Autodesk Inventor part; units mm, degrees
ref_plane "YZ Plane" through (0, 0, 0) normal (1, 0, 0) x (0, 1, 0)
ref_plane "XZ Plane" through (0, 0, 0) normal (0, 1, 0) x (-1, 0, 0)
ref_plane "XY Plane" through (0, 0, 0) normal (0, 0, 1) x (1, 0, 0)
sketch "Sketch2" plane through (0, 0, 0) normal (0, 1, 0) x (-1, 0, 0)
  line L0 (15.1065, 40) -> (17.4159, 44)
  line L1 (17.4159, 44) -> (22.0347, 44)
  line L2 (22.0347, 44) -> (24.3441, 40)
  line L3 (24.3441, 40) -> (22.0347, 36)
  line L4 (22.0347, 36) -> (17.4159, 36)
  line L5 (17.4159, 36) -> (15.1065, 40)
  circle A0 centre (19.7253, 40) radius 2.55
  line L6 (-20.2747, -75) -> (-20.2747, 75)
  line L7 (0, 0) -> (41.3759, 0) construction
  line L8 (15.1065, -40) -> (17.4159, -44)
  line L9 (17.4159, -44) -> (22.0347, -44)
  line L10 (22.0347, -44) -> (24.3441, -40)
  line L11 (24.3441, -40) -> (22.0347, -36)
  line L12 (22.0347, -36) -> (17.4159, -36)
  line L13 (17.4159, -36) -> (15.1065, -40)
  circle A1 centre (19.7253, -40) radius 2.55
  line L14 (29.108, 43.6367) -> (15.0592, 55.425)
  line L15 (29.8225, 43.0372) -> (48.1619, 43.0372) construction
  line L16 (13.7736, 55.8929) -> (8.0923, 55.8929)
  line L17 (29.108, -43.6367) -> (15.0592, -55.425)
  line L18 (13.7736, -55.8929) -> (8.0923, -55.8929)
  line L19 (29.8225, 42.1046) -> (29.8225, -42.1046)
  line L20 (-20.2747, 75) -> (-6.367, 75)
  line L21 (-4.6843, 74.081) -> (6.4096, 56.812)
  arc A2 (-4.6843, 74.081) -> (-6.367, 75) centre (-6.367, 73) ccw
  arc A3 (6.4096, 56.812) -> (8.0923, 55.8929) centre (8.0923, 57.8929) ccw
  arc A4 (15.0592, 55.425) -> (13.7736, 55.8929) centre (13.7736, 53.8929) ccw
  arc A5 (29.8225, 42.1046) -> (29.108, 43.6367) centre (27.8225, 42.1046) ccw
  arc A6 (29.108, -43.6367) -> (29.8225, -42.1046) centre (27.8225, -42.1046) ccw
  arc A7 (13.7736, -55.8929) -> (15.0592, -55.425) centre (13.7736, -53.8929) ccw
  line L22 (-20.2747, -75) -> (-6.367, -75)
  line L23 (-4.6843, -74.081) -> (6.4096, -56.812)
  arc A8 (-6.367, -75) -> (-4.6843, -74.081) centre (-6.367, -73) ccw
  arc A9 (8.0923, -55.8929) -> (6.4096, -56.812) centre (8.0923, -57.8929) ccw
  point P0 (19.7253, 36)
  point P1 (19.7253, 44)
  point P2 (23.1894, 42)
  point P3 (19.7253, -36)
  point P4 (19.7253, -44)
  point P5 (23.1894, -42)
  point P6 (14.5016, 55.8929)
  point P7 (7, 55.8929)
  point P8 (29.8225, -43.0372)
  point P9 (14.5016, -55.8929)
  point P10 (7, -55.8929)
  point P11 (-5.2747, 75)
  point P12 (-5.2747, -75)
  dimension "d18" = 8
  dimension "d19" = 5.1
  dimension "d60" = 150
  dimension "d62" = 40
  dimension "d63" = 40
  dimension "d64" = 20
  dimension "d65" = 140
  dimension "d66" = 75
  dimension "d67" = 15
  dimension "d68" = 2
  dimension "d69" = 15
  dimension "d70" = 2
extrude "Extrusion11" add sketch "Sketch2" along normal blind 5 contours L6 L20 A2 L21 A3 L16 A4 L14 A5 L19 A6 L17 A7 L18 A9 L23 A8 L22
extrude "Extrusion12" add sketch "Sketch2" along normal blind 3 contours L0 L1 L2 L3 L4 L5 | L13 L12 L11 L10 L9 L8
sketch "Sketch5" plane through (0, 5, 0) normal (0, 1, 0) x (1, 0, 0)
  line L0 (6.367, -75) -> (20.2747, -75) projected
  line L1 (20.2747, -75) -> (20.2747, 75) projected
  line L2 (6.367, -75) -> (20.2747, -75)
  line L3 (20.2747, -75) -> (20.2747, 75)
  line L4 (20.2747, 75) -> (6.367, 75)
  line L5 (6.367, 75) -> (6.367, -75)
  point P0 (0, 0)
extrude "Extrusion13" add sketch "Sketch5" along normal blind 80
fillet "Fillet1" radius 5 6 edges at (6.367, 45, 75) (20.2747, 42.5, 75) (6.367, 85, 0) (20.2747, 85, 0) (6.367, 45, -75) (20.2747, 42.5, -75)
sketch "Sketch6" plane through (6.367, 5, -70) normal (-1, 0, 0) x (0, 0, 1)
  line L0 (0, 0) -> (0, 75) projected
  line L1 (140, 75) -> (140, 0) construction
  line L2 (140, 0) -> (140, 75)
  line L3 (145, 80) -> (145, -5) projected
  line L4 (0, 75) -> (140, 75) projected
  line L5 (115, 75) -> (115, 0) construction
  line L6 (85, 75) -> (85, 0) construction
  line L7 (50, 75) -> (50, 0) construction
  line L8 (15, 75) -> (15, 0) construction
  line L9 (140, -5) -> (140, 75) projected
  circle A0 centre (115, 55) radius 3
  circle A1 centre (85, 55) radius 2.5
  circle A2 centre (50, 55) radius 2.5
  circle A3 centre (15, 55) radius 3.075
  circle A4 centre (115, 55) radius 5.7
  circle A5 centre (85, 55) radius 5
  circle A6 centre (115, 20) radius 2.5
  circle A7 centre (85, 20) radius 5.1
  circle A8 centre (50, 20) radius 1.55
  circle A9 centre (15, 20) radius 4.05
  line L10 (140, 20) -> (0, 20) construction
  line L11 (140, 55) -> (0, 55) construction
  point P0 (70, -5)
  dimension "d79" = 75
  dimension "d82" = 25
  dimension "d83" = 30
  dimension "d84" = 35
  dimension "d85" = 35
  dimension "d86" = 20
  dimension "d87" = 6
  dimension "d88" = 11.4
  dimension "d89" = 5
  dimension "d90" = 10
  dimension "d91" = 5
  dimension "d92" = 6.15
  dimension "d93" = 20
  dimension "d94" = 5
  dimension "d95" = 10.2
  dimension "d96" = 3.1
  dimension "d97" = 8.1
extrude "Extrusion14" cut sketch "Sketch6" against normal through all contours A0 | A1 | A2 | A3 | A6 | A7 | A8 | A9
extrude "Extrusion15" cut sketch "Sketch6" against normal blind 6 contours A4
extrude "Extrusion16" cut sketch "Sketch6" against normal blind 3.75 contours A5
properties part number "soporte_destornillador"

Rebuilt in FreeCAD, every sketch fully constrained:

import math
import FreeCAD as App
import Part
import Sketcher

V = App.Vector
Q = App.Units.Quantity


def edges_at(feature, points):
    """Names of the edges that pass closest to the given points."""
    edges = feature.Shape.Edges
    near = lambda p: min(range(len(edges)), key=lambda i: edges[i].distToShape(Part.Vertex(*p))[0])
    return sorted({f"Edge{near(p) + 1}" for p in points})


def add_polygon(sketch, points):
    """Adds a closed chain of lines whose ends are joined by coincident constraints."""
    first, n = sketch.GeometryCount, len(points)
    for a, b in zip(points, points[1:] + points[:1]):
        sketch.addGeometry(Part.LineSegment(App.Vector(*a, 0), App.Vector(*b, 0)), False)
    for i in range(n):
        sketch.addConstraint(Sketcher.Constraint("Coincident", first + i, 2, first + (i + 1) % n, 1))

doc = App.newDocument("Part")
body = doc.addObject("PartDesign::Body", "Body")

sketch1 = body.newObject("Sketcher::SketchObject", "Sketch")
sketch1.AttachmentSupport = (doc.getObject("XZ_Plane"), [""])
sketch1.MapMode = "FlatFace"
sketch1.addGeometry(Part.LineSegment(V(20.2747, 75, 0), V(20.2747, -75, 0)), False)
sketch1.addGeometry(Part.LineSegment(V(20.2747, -75, 0), V(6.367, -75, 0)), False)
sketch1.addGeometry(Part.ArcOfCircle(Part.Circle(V(6.367, -73, 0), V(0, 0, 1), 2), math.radians(-147.282503), math.radians(-90)), False)
sketch1.addGeometry(Part.LineSegment(V(4.6843, -74.081, 0), V(-6.4096, -56.812, 0)), False)
sketch1.addGeometry(Part.ArcOfCircle(Part.Circle(V(-8.0923, -57.8929, 0), V(0, 0, 1), 2), math.radians(32.715087), math.radians(90)), False)
sketch1.addGeometry(Part.LineSegment(V(-8.0923, -55.8929, 0), V(-13.7736, -55.8929, 0)), False)
sketch1.addGeometry(Part.ArcOfCircle(Part.Circle(V(-13.7736, -53.8929, 0), V(0, 0, 1), 2), math.radians(-130.000339), math.radians(-90)), False)
sketch1.addGeometry(Part.LineSegment(V(-15.0592, -55.425, 0), V(-29.108, -43.6367, 0)), False)
sketch1.addGeometry(Part.ArcOfCircle(Part.Circle(V(-27.8225, -42.1046, 0), V(0, 0, 1), 1.99996), math.radians(180), math.radians(230.001855)), False)
sketch1.addGeometry(Part.LineSegment(V(-29.8225, -42.1046, 0), V(-29.8225, 42.1046, 0)), False)
sketch1.addGeometry(Part.ArcOfCircle(Part.Circle(V(-27.8225, 42.1046, 0), V(0, 0, 1), 2), math.radians(129.998145), math.radians(180)), False)
sketch1.addGeometry(Part.LineSegment(V(-29.108, 43.6367, 0), V(-15.0592, 55.425, 0)), False)
sketch1.addGeometry(Part.ArcOfCircle(Part.Circle(V(-13.7736, 53.8929, 0), V(0, 0, 1), 2.000024), math.radians(90), math.radians(130.000339)), False)
sketch1.addGeometry(Part.LineSegment(V(-13.7736, 55.8929, 0), V(-8.0923, 55.8929, 0)), False)
sketch1.addGeometry(Part.ArcOfCircle(Part.Circle(V(-8.0923, 57.8929, 0), V(0, 0, 1), 1.999956), math.radians(-90), math.radians(-32.715087)), False)
sketch1.addGeometry(Part.LineSegment(V(-6.4096, 56.812, 0), V(4.6843, 74.081, 0)), False)
sketch1.addGeometry(Part.ArcOfCircle(Part.Circle(V(6.367, 73, 0), V(0, 0, 1), 2.00001), math.radians(90), math.radians(147.282503)), False)
sketch1.addGeometry(Part.LineSegment(V(6.367, 75, 0), V(20.2747, 75, 0)), False)
add_polygon(sketch1, [(-17.4159, -44), (-15.1065, -40), (-17.4159, -36), (-22.0347, -36), (-24.3441, -40), (-22.0347, -44)])
add_polygon(sketch1, [(-17.4159, 36), (-15.1065, 40), (-17.4159, 44), (-22.0347, 44), (-24.3441, 40), (-22.0347, 36)])
sketch1.addConstraint([
    Sketcher.Constraint("Coincident", 0, 2, 1, 1),
    Sketcher.Constraint("Tangent", 1, 2, 2, 2),
    Sketcher.Constraint("Tangent", 2, 1, 3, 1),
    Sketcher.Constraint("Tangent", 3, 2, 4, 1),
    Sketcher.Constraint("Tangent", 4, 2, 5, 1),
    Sketcher.Constraint("Tangent", 5, 2, 6, 2),
    Sketcher.Constraint("Tangent", 6, 1, 7, 1),
    Sketcher.Constraint("Tangent", 7, 2, 8, 2),
    Sketcher.Constraint("Tangent", 8, 1, 9, 1),
    Sketcher.Constraint("Tangent", 9, 2, 10, 2),
    Sketcher.Constraint("Tangent", 10, 1, 11, 1),
    Sketcher.Constraint("Tangent", 11, 2, 12, 2),
    Sketcher.Constraint("Tangent", 12, 1, 13, 1),
    Sketcher.Constraint("Tangent", 13, 2, 14, 1),
    Sketcher.Constraint("Tangent", 14, 2, 15, 1),
    Sketcher.Constraint("Tangent", 15, 2, 16, 2),
    Sketcher.Constraint("Tangent", 16, 1, 17, 1),
    Sketcher.Constraint("Coincident", 17, 2, 0, 1),
    Sketcher.Constraint("Vertical", 0),
    Sketcher.Constraint("Horizontal", 1),
    Sketcher.Constraint("Horizontal", 5),
    Sketcher.Constraint("Vertical", 9),
    Sketcher.Constraint("Horizontal", 13),
    Sketcher.Constraint("Horizontal", 17),
    Sketcher.Constraint("Horizontal", 20),
    Sketcher.Constraint("Horizontal", 23),
    Sketcher.Constraint("Horizontal", 26),
    Sketcher.Constraint("Horizontal", 29),
    Sketcher.Constraint("Equal", 2, 4),
    Sketcher.Constraint("Equal", 4, 6),
    Sketcher.Constraint("Equal", 6, 8),
    Sketcher.Constraint("Equal", 8, 10),
    Sketcher.Constraint("Equal", 10, 12),
    Sketcher.Constraint("Equal", 12, 14),
    Sketcher.Constraint("Equal", 14, 16),
    Sketcher.Constraint("Symmetric", 6, 3, 12, 3, -1),
    Sketcher.Constraint("Symmetric", 2, 3, 16, 3, -1),
    Sketcher.Constraint("Symmetric", 18, 2, 24, 2, -1),
    Sketcher.Constraint("Symmetric", 23, 2, 25, 2, -1),
    Sketcher.Constraint("Symmetric", 21, 2, 27, 2, -1),
    Sketcher.Constraint("Symmetric", 20, 2, 28, 2, -1),
    Sketcher.Constraint("Parallel", 18, 21),
    Sketcher.Constraint("Parallel", 19, 22),
    Sketcher.Constraint("Parallel", 21, 24),
    Sketcher.Constraint("Parallel", 22, 25),
    Sketcher.Constraint("Parallel", 24, 27),
    Sketcher.Constraint("Horizontal", 18, 2, 21, 2),
    Sketcher.Constraint("Vertical", 4, 3, 14, 3),
    Sketcher.Constraint("Vertical", 7, 2, 10, 1),
    Sketcher.Constraint("Vertical", 20, 2, 22, 2),
    Sketcher.Constraint("Radius", 2, 2.0),
    Sketcher.Constraint("DistanceY", 0, 2, 0, 1, 150.0),
    Sketcher.Constraint("Angle", 7, Q("140 deg")),
    Sketcher.Constraint("DistanceY", 18, 2, -1, 1, 40.0),
    Sketcher.Constraint("DistanceY", 22, 2, 20, 2, 8.0),
    Sketcher.Constraint("Angle", 18, Q("60 deg")),
    Sketcher.Constraint("DistanceX", 1, 2, 1, 1, 13.9077),
    Sketcher.Constraint("DistanceX", 5, 2, 5, 1, 5.6813),
    Sketcher.Constraint("DistanceX", 20, 2, 20, 1, 4.6188),
    Sketcher.Constraint("DistanceY", 9, 1, 9, 2, 84.2092),
    Sketcher.Constraint("DistanceX", -1, 1, 2, 3, 6.367),
    Sketcher.Constraint("DistanceY", 4, 3, -1, 1, 57.893),
    Sketcher.Constraint("DistanceY", 2, 1, -1, 1, 74.081),
    Sketcher.Constraint("DistanceX", 19, 2, -1, 1, 17.416),
])
pad1 = body.newObject("PartDesign::Pad", "Pad")
pad1.Profile = sketch1
pad1.Length = 5
pad1.Reversed = True

sketch2 = body.newObject("Sketcher::SketchObject", "Sketch001")
sketch2.AttachmentSupport = (doc.getObject("XZ_Plane"), [""])
sketch2.MapMode = "FlatFace"
add_polygon(sketch2, [(-17.4159, 44), (-15.1065, 40), (-17.4159, 36), (-22.0347, 36), (-24.3441, 40), (-22.0347, 44)])
sketch2.addGeometry(Part.Circle(V(-19.7253, 40, 0), V(0, 0, 1), 2.55), False)
add_polygon(sketch2, [(-17.4159, -36), (-15.1065, -40), (-17.4159, -44), (-22.0347, -44), (-24.3441, -40), (-22.0347, -36)])
sketch2.addGeometry(Part.Circle(V(-19.7253, -40, 0), V(0, 0, 1), 2.55), False)
sketch2.addConstraint([
    Sketcher.Constraint("Horizontal", 2),
    Sketcher.Constraint("Horizontal", 5),
    Sketcher.Constraint("Horizontal", 9),
    Sketcher.Constraint("Horizontal", 12),
    Sketcher.Constraint("Equal", 6, 13),
    Sketcher.Constraint("Symmetric", 6, 3, 13, 3, -1),
    Sketcher.Constraint("Symmetric", 0, 2, 7, 2, -1),
    Sketcher.Constraint("Symmetric", 5, 2, 8, 2, -1),
    Sketcher.Constraint("Symmetric", 3, 2, 10, 2, -1),
    Sketcher.Constraint("Symmetric", 2, 2, 11, 2, -1),
    Sketcher.Constraint("Parallel", 0, 3),
    Sketcher.Constraint("Parallel", 1, 4),
    Sketcher.Constraint("Parallel", 3, 7),
    Sketcher.Constraint("Parallel", 4, 8),
    Sketcher.Constraint("Parallel", 7, 10),
    Sketcher.Constraint("Horizontal", 6, 3, 0, 2),
    Sketcher.Constraint("Horizontal", 0, 2, 3, 2),
    Sketcher.Constraint("Vertical", 2, 2, 4, 2),
    Sketcher.Constraint("Diameter", 6, 5.1),
    Sketcher.Constraint("DistanceY", -1, 1, 6, 3, 40.0),
    Sketcher.Constraint("DistanceY", 2, 2, 4, 2, 8.0),
    Sketcher.Constraint("Angle", 0, Q("-60 deg")),
    Sketcher.Constraint("DistanceX", 2, 2, 2, 1, 4.6188),
    Sketcher.Constraint("DistanceX", 1, 2, -1, 1, 17.416),
    Sketcher.Constraint("DistanceX", 6, 3, -1, 1, 19.7253),
])
pad2 = body.newObject("PartDesign::Pad", "Pad001")
pad2.Profile = sketch2
pad2.Length = 3
pad2.Reversed = True

sketch3 = body.newObject("Sketcher::SketchObject", "Sketch002")
sketch3.AttachmentSupport = (doc.getObject("XZ_Plane"), [""])
sketch3.MapMode = "FlatFace"
sketch3.AttachmentOffset = App.Placement(V(0, 0, -5), App.Rotation())
add_polygon(sketch3, [(6.367, -75), (6.367, 75), (20.2747, 75), (20.2747, -75)])
sketch3.addConstraint([
    Sketcher.Constraint("Vertical", 0),
    Sketcher.Constraint("Horizontal", 1),
    Sketcher.Constraint("Vertical", 2),
    Sketcher.Constraint("Horizontal", 3),
    Sketcher.Constraint("DistanceY", 0, 1, 0, 2, 150.0),
    Sketcher.Constraint("DistanceY", -1, 1, 0, 2, 75.0),
    Sketcher.Constraint("DistanceX", 1, 1, 1, 2, 13.9077),
    Sketcher.Constraint("DistanceX", -1, 1, 0, 2, 6.367),
])
pad3 = body.newObject("PartDesign::Pad", "Pad002")
pad3.Profile = sketch3
pad3.Length = 80
pad3.Reversed = True
doc.recompute()

fillet = body.newObject("PartDesign::Fillet", "Fillet")
fillet.Base = (pad3, edges_at(pad3, [
    (6.367, 45, 75),
    (20.275, 42.5, 75),
    (6.367, 85, 0),
    (20.275, 85, 0),
    (6.367, 45, -75),
    (20.275, 42.5, -75),
]))
fillet.Radius = 5

sketch4 = body.newObject("Sketcher::SketchObject", "Sketch003")
sketch4.AttachmentSupport = (doc.getObject("YZ_Plane"), [""])
sketch4.MapMode = "FlatFace"
sketch4.AttachmentOffset = App.Placement(V(0, 0, 6.367), App.Rotation())
sketch4.addGeometry([
    Part.Circle(V(60, 45, 0), V(0, 0, 1), 3),
    Part.Circle(V(60, 15, 0), V(0, 0, 1), 2.5),
    Part.Circle(V(60, -20, 0), V(0, 0, 1), 2.5),
    Part.Circle(V(60, -55, 0), V(0, 0, 1), 3.075),
    Part.Circle(V(25, 45, 0), V(0, 0, 1), 2.5),
    Part.Circle(V(25, 15, 0), V(0, 0, 1), 5.1),
    Part.Circle(V(25, -20, 0), V(0, 0, 1), 1.55),
    Part.Circle(V(25, -55, 0), V(0, 0, 1), 4.05),
], False)
sketch4.addConstraint([
    Sketcher.Constraint("Equal", 1, 2),
    Sketcher.Constraint("Equal", 2, 4),
    Sketcher.Constraint("Horizontal", 0, 3, 4, 3),
    Sketcher.Constraint("Horizontal", 1, 3, 5, 3),
    Sketcher.Constraint("Horizontal", 2, 3, 6, 3),
    Sketcher.Constraint("Horizontal", 3, 3, 7, 3),
    Sketcher.Constraint("Vertical", 0, 3, 1, 3),
    Sketcher.Constraint("Vertical", 1, 3, 2, 3),
    Sketcher.Constraint("Vertical", 2, 3, 3, 3),
    Sketcher.Constraint("Vertical", 4, 3, 5, 3),
    Sketcher.Constraint("Vertical", 5, 3, 6, 3),
    Sketcher.Constraint("Vertical", 6, 3, 7, 3),
    Sketcher.Constraint("Diameter", 0, 6.0),
    Sketcher.Constraint("Diameter", 1, 5.0),
    Sketcher.Constraint("Diameter", 5, 10.2),
    Sketcher.Constraint("Diameter", 6, 3.1),
    Sketcher.Constraint("Diameter", 7, 8.1),
    Sketcher.Constraint("Diameter", 3, 6.15),
    Sketcher.Constraint("DistanceY", 2, 3, -1, 1, 20.0),
    Sketcher.Constraint("DistanceX", -1, 1, 4, 3, 25.0),
    Sketcher.Constraint("DistanceY", 1, 3, 0, 3, 30.0),
    Sketcher.Constraint("DistanceY", 2, 3, 1, 3, 35.0),
    Sketcher.Constraint("DistanceY", 3, 3, 2, 3, 35.0),
    Sketcher.Constraint("DistanceX", 4, 3, 0, 3, 35.0),
])
pocket1 = body.newObject("PartDesign::Pocket", "Pocket")
pocket1.Profile = sketch4
pocket1.Type = "ThroughAll"
pocket1.Reversed = True

sketch5 = body.newObject("Sketcher::SketchObject", "Sketch004")
sketch5.AttachmentSupport = (doc.getObject("YZ_Plane"), [""])
sketch5.MapMode = "FlatFace"
sketch5.AttachmentOffset = App.Placement(V(0, 0, 6.367), App.Rotation())
sketch5.addGeometry([
    Part.Circle(V(60, 45, 0), V(0, 0, 1), 5.7),
    Part.Circle(V(60, 45, 0), V(0, 0, 1), 3),
], False)
sketch5.addConstraint([
    Sketcher.Constraint("Coincident", 1, 3, 0, 3),
    Sketcher.Constraint("Diameter", 1, 6.0),
    Sketcher.Constraint("Diameter", 0, 11.4),
    Sketcher.Constraint("DistanceX", -1, 1, 0, 3, 60.0),
    Sketcher.Constraint("DistanceY", -1, 1, 0, 3, 45.0),
])
pocket2 = body.newObject("PartDesign::Pocket", "Pocket001")
pocket2.Profile = sketch5
pocket2.Length = 6
pocket2.Reversed = True

sketch6 = body.newObject("Sketcher::SketchObject", "Sketch005")
sketch6.AttachmentSupport = (doc.getObject("YZ_Plane"), [""])
sketch6.MapMode = "FlatFace"
sketch6.AttachmentOffset = App.Placement(V(0, 0, 6.367), App.Rotation())
sketch6.addGeometry([
    Part.Circle(V(60, 15, 0), V(0, 0, 1), 5),
    Part.Circle(V(60, 15, 0), V(0, 0, 1), 2.5),
], False)
sketch6.addConstraint([
    Sketcher.Constraint("Coincident", 1, 3, 0, 3),
    Sketcher.Constraint("Diameter", 0, 10.0),
    Sketcher.Constraint("Diameter", 1, 5.0),
    Sketcher.Constraint("DistanceX", -1, 1, 0, 3, 60.0),
    Sketcher.Constraint("DistanceY", -1, 1, 0, 3, 15.0),
])
pocket3 = body.newObject("PartDesign::Pocket", "Pocket002")
pocket3.Profile = sketch6
pocket3.Length = 3.75
pocket3.Reversed = True

doc.recompute()
